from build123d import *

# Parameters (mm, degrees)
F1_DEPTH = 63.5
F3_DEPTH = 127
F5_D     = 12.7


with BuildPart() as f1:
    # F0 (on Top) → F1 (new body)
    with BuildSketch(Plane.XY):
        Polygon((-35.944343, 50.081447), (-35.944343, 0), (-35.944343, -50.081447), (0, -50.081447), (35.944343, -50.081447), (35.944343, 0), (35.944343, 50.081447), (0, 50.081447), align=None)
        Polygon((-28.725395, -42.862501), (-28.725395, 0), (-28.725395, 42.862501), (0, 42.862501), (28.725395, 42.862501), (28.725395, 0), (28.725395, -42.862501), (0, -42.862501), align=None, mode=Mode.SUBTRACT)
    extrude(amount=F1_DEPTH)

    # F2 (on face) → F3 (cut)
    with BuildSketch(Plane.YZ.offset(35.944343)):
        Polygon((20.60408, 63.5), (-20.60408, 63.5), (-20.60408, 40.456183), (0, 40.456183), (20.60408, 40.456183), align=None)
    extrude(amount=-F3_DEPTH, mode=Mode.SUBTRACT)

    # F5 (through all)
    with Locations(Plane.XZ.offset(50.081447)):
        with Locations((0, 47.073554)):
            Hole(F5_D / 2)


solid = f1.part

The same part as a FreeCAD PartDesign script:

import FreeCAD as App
import Part
import Sketcher
Q = App.Units.Quantity

doc = App.newDocument("Part")
body = doc.addObject("PartDesign::Body", "Body")

sketch1 = body.newObject("Sketcher::SketchObject", "Sketch")
sketch1.AttachmentSupport = (doc.getObject("XY_Plane"), [""])
sketch1.MapMode = "FlatFace"
sketch1.addGeometry([
    Part.LineSegment(App.Vector(-36, 50, 0), App.Vector(-36, -50, 0)),
    Part.LineSegment(App.Vector(-36, -50, 0), App.Vector(36, -50, 0)),
    Part.LineSegment(App.Vector(36, -50, 0), App.Vector(36, 50, 0)),
    Part.LineSegment(App.Vector(36, 50, 0), App.Vector(-36, 50, 0)),
    Part.LineSegment(App.Vector(29, -43, 0), App.Vector(-29, -43, 0)),
    Part.LineSegment(App.Vector(-29, -43, 0), App.Vector(-29, 43, 0)),
    Part.LineSegment(App.Vector(-29, 43, 0), App.Vector(29, 43, 0)),
    Part.LineSegment(App.Vector(29, 43, 0), App.Vector(29, -43, 0)),
], False)
sketch1.addConstraint([
    Sketcher.Constraint("Coincident", 0, 2, 1, 1),
    Sketcher.Constraint("Coincident", 1, 2, 2, 1),
    Sketcher.Constraint("Coincident", 2, 2, 3, 1),
    Sketcher.Constraint("Coincident", 3, 2, 0, 1),
    Sketcher.Constraint("Coincident", 4, 2, 5, 1),
    Sketcher.Constraint("Coincident", 5, 2, 6, 1),
    Sketcher.Constraint("Coincident", 6, 2, 7, 1),
    Sketcher.Constraint("Coincident", 7, 2, 4, 1),
    Sketcher.Constraint("Vertical", 0),
    Sketcher.Constraint("Horizontal", 1),
    Sketcher.Constraint("Vertical", 2),
    Sketcher.Constraint("Horizontal", 3),
    Sketcher.Constraint("Horizontal", 4),
    Sketcher.Constraint("Vertical", 5),
    Sketcher.Constraint("Horizontal", 6),
    Sketcher.Constraint("Vertical", 7),
    Sketcher.Constraint("Symmetric", 0, 2, 2, 2, -1, 1),
    Sketcher.Constraint("Symmetric", 4, 2, 6, 2, -1, 1),
    Sketcher.Constraint("DistanceY", 5, 1, 5, 2, Q("3.3750001 in")),
    Sketcher.Constraint("DistanceX", 4, 2, 4, 1, 57.45079),
    Sketcher.Constraint("DistanceX", 1, 1, 1, 2, 71.888686),
    Sketcher.Constraint("DistanceY", 0, 2, 0, 1, 100.162894),
])
pad1 = body.newObject("PartDesign::Pad", "Pad")
pad1.Profile = sketch1
pad1.Length = Q("2.5 in")

sketch2 = body.newObject("Sketcher::SketchObject", "Sketch001")
sketch2.AttachmentSupport = (doc.getObject("YZ_Plane"), [""])
sketch2.MapMode = "FlatFace"
sketch2.AttachmentOffset = App.Placement(App.Vector(0, 0, 35.944343), App.Rotation())
sketch2.addGeometry([
    Part.LineSegment(App.Vector(21, 64, 0), App.Vector(-21, 64, 0)),
    Part.LineSegment(App.Vector(-21, 64, 0), App.Vector(-21, 40, 0)),
    Part.LineSegment(App.Vector(-21, 40, 0), App.Vector(21, 40, 0)),
    Part.LineSegment(App.Vector(21, 40, 0), App.Vector(21, 64, 0)),
], False)
sketch2.addConstraint([
    Sketcher.Constraint("Coincident", 0, 2, 1, 1),
    Sketcher.Constraint("Coincident", 1, 2, 2, 1),
    Sketcher.Constraint("Coincident", 2, 2, 3, 1),
    Sketcher.Constraint("Coincident", 3, 2, 0, 1),
    Sketcher.Constraint("Horizontal", 0),
    Sketcher.Constraint("Vertical", 1),
    Sketcher.Constraint("Horizontal", 2),
    Sketcher.Constraint("Vertical", 3),
    Sketcher.Constraint("DistanceY", -1, 1, 0, 2, Q("2.5 in")),
    Sketcher.Constraint("DistanceX", 0, 2, 0, 1, 41.20816),
    Sketcher.Constraint("DistanceY", 1, 2, 1, 1, 23.043817),
    Sketcher.Constraint("DistanceX", 0, 2, -1, 1, 20.60408),
])
pocket1 = body.newObject("PartDesign::Pocket", "Pocket")
pocket1.Profile = sketch2
pocket1.Length = Q("5 in")

sketch3 = body.newObject("Sketcher::SketchObject", "Sketch002")
sketch3.AttachmentSupport = (doc.getObject("XZ_Plane"), [""])
sketch3.MapMode = "FlatFace"
sketch3.AttachmentOffset = App.Placement(App.Vector(0, 0, 50.081447), App.Rotation())
sketch3.addGeometry(Part.Circle(App.Vector(0, 47, 0), App.Vector(0, 0, 1), 6), False)
sketch3.addConstraint([
    Sketcher.Constraint("PointOnObject", 0, 3, -2),
    Sketcher.Constraint("Diameter", 0, Q("0.5 in")),
    Sketcher.Constraint("DistanceY", -1, 1, 0, 3, 47.073554),
])
doc.recompute()
hole = body.newObject("PartDesign::Hole", "Hole")
hole.Profile = sketch3
hole.ThreadType = "None"
hole.Diameter = Q("0.5 in")
hole.DepthType = "ThroughAll"

doc.recompute()
